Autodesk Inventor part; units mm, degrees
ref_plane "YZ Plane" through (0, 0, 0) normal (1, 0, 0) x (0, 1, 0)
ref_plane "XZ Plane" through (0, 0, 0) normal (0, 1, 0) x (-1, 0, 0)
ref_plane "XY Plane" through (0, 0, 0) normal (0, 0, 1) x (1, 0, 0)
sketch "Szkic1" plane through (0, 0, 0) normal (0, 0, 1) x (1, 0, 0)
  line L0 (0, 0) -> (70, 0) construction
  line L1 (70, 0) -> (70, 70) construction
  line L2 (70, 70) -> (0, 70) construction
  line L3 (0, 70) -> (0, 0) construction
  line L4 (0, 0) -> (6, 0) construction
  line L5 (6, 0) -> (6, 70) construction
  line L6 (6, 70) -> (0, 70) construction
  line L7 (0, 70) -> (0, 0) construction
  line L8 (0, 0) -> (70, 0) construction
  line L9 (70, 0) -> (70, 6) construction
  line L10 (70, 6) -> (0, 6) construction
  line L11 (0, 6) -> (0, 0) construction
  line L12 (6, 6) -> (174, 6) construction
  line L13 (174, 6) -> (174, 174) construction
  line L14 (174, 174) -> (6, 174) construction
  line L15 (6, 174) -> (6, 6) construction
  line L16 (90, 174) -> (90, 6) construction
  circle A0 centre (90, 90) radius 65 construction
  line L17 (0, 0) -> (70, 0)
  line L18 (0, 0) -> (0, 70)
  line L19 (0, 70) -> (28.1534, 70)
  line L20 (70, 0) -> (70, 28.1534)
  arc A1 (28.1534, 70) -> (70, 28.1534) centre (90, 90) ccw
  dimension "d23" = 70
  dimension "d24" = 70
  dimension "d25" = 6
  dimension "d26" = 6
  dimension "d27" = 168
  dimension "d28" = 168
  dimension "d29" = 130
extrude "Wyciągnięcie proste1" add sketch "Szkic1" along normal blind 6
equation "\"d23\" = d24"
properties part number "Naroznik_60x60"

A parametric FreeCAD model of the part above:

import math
import FreeCAD as App
import Part
import Sketcher

doc = App.newDocument("Part")
params = doc.addObject("Spreadsheet::Sheet", "Params")
for row, (alias, value) in enumerate([
    ("sketch1_radius", "65 mm"),
    ("sketch1_width", "70 mm"),
    ("pad1_length", "6 mm"),
], start=1):
    params.set(f"A{row}", alias)
    params.set(f"B{row}", "=" + value)
    params.setAlias(f"B{row}", alias)

body = doc.addObject("PartDesign::Body", "Body")

# Sketch on XY plane
sketch1 = body.newObject("Sketcher::SketchObject", "Sketch")
sketch1.AttachmentSupport = (doc.getObject("XY_Plane"), [""])
sketch1.MapMode = "FlatFace"
sketch1.addGeometry(Part.LineSegment(App.Vector(0, 70, 0), App.Vector(0, 0, 0)), False)
sketch1.addGeometry(Part.LineSegment(App.Vector(0, 0, 0), App.Vector(70, 0, 0)), False)
sketch1.addGeometry(Part.LineSegment(App.Vector(70, 0, 0), App.Vector(70, 28, 0)), False)
sketch1.addGeometry(Part.ArcOfCircle(Part.Circle(App.Vector(90, 90, 0), App.Vector(0, 0, 1), 65), math.radians(-162), math.radians(-108)), False)
sketch1.addGeometry(Part.LineSegment(App.Vector(28, 70, 0), App.Vector(0, 70, 0)), False)
sketch1.addConstraint(Sketcher.Constraint("Coincident", 0, 2, 1, 1))
sketch1.addConstraint(Sketcher.Constraint("Coincident", 1, 2, 2, 1))
sketch1.addConstraint(Sketcher.Constraint("Coincident", 2, 2, 3, 2))
sketch1.addConstraint(Sketcher.Constraint("Coincident", 3, 1, 4, 1))
sketch1.addConstraint(Sketcher.Constraint("Coincident", 4, 2, 0, 1))
sketch1.addConstraint(Sketcher.Constraint("Vertical", 0))
sketch1.addConstraint(Sketcher.Constraint("Horizontal", 1))
sketch1.addConstraint(Sketcher.Constraint("Vertical", 2))
sketch1.addConstraint(Sketcher.Constraint("Horizontal", 4))
sketch1.addConstraint(Sketcher.Constraint("Coincident", 0, 2, -1, 1))
sketch1.addConstraint(Sketcher.Constraint("Equal", 1, 0))
sketch1.addConstraint(Sketcher.Constraint("Equal", 4, 2))
sketch1.addConstraint(Sketcher.Constraint("Radius", 3, 65.0))
sketch1.addConstraint(Sketcher.Constraint("DistanceX", 1, 1, 1, 2, 70.0))
sketch1.addConstraint(Sketcher.Constraint("DistanceX", -1, 1, 3, 3, 90.0))
sketch1.setExpression("Constraints[12]", "Params.sketch1_radius")
sketch1.setExpression("Constraints[13]", "Params.sketch1_width")
pad1 = body.newObject("PartDesign::Pad", "Pad")
pad1.Profile = sketch1
pad1.setExpression("Length", "Params.pad1_length")

doc.recompute()
